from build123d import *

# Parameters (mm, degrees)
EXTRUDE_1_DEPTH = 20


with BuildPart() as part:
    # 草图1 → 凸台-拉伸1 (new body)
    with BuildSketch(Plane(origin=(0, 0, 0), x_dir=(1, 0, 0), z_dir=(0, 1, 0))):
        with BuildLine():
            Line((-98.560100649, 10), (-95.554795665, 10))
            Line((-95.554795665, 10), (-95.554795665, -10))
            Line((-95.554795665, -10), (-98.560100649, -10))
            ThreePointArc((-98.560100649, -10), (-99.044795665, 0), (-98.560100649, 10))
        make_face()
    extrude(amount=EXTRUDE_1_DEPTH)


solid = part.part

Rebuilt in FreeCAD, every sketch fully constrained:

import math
import FreeCAD as App
import Part
import Sketcher

V = App.Vector
Q = App.Units.Quantity

doc = App.newDocument("Part")
body = doc.addObject("PartDesign::Body", "Body")

# Sketch on XZ plane
sketch1 = body.newObject("Sketcher::SketchObject", "Sketch")
sketch1.AttachmentSupport = (doc.getObject("XZ_Plane"), [""])
sketch1.MapMode = "FlatFace"
sketch1.addGeometry(Part.LineSegment(V(-95.6, -10, 0), V(-98.6, -10, 0)), False)
sketch1.addGeometry(Part.ArcOfCircle(Part.Circle(V(4.4, 0, 0), V(0, 0, 1), 103.4), math.radians(174.45), math.radians(185.55)), False)
sketch1.addGeometry(Part.LineSegment(V(-98.6, 10, 0), V(-95.6, 10, 0)), False)
sketch1.addGeometry(Part.LineSegment(V(-95.6, 10, 0), V(-95.6, -10, 0)), False)
sketch1.addConstraint(Sketcher.Constraint("Coincident", 0, 2, 1, 2))
sketch1.addConstraint(Sketcher.Constraint("Coincident", 1, 1, 2, 1))
sketch1.addConstraint(Sketcher.Constraint("Coincident", 2, 2, 3, 1))
sketch1.addConstraint(Sketcher.Constraint("Coincident", 3, 2, 0, 1))
sketch1.addConstraint(Sketcher.Constraint("Horizontal", 0))
sketch1.addConstraint(Sketcher.Constraint("Horizontal", 2))
sketch1.addConstraint(Sketcher.Constraint("Vertical", 3))
sketch1.addConstraint(Sketcher.Constraint("Symmetric", 0, 2, 1, 1, -1))
sketch1.addConstraint(Sketcher.Constraint("Radius", 1, Q("103.4 mm")))
sketch1.addConstraint(Sketcher.Constraint("DistanceY", 3, 2, 3, 1, Q("20 mm")))
sketch1.addConstraint(Sketcher.Constraint("DistanceX", 2, 2, 1, 3, Q("99.91 mm")))
sketch1.addConstraint(Sketcher.Constraint("DistanceX", 0, 2, -1, 1, Q("98.560101 mm")))
pad1 = body.newObject("PartDesign::Pad", "Pad")
pad1.Profile = sketch1
pad1.Length = 20
pad1.Reversed = True

doc.recompute()
